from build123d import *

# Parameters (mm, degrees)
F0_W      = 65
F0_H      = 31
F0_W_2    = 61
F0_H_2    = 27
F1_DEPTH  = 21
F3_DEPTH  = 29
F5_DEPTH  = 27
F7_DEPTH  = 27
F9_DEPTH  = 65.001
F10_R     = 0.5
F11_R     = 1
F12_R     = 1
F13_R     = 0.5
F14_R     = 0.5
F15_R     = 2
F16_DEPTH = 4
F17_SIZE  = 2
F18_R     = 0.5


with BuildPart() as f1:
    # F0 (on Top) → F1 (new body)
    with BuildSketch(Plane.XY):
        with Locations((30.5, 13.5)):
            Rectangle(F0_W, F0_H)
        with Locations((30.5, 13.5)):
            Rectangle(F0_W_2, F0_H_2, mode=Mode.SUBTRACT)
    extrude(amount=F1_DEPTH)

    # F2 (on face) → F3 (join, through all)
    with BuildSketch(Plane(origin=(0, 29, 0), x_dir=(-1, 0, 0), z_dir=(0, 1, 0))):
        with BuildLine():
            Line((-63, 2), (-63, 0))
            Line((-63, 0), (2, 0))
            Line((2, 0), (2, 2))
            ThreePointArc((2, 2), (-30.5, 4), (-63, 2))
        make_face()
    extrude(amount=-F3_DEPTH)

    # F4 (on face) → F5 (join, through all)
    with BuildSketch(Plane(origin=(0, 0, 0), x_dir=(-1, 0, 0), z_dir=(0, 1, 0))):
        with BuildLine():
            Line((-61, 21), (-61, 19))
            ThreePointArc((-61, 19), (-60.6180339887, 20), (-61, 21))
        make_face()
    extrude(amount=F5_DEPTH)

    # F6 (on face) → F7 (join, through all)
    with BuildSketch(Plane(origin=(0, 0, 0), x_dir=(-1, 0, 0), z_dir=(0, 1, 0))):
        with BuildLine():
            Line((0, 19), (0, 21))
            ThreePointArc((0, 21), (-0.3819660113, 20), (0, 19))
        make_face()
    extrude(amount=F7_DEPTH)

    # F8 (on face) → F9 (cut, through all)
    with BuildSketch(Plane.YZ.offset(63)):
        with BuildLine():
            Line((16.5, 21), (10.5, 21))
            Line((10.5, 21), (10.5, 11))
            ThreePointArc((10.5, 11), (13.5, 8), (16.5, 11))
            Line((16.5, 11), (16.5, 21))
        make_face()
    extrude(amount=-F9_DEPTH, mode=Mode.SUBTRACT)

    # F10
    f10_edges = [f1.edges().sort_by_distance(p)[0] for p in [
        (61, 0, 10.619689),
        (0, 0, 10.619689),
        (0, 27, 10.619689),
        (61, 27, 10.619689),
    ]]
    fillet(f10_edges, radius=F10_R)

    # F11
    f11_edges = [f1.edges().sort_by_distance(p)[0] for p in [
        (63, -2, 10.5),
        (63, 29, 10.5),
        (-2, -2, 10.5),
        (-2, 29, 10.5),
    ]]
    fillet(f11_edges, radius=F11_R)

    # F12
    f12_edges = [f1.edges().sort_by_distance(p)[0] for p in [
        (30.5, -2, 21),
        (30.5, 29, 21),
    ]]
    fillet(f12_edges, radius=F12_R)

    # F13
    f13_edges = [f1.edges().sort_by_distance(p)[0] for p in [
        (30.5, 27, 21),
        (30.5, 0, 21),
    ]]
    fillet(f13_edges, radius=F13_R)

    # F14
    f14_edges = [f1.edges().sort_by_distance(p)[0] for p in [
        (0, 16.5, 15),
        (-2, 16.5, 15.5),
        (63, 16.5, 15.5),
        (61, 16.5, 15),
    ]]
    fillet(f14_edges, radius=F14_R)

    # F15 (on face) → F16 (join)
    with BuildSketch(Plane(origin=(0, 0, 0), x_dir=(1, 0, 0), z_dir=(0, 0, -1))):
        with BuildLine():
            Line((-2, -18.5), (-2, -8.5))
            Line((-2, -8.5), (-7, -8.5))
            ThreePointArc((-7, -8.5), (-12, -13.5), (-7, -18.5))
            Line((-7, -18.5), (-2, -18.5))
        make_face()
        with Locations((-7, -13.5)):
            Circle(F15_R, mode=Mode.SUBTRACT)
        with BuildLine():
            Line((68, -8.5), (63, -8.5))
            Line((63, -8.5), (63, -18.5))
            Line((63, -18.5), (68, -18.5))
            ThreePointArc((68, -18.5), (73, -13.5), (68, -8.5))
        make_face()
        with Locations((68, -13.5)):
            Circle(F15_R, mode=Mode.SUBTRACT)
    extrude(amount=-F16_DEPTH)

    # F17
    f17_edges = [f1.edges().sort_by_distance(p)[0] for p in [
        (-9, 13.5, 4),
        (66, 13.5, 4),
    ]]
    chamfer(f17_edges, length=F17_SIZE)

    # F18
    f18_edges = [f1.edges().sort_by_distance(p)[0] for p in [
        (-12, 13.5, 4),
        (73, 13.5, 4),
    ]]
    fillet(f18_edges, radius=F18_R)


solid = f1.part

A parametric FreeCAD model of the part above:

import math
import FreeCAD as App
import Part
import Sketcher
from FreeCAD import Vector
Q = App.Units.Quantity


def edges_at(feature, points):
    """Names of the edges that pass closest to the given points."""
    edges = feature.Shape.Edges
    near = lambda p: min(range(len(edges)), key=lambda i: edges[i].distToShape(Part.Vertex(*p))[0])
    return sorted({f"Edge{near(p) + 1}" for p in points})

doc = App.newDocument("Part")
body = doc.addObject("PartDesign::Body", "Body")

# Sketch on XY plane
sketch1 = doc.addObject("Sketcher::SketchObject", "Sketch")
body.addObject(sketch1)
sketch1.AttachmentSupport = (doc.XY_Plane, [""])
sketch1.MapMode = "FlatFace"
sketch1.addGeometry(Part.LineSegment(Vector(-2, 29, 0), Vector(-2, -2, 0)), False)
sketch1.addGeometry(Part.LineSegment(Vector(-2, -2, 0), Vector(63, -2, 0)), False)
sketch1.addGeometry(Part.LineSegment(Vector(63, -2, 0), Vector(63, 29, 0)), False)
sketch1.addGeometry(Part.LineSegment(Vector(63, 29, 0), Vector(-2, 29, 0)), False)
sketch1.addGeometry(Part.LineSegment(Vector(61, 0, 0), Vector(0, 0, 0)), False)
sketch1.addGeometry(Part.LineSegment(Vector(0, 0, 0), Vector(0, 27, 0)), False)
sketch1.addGeometry(Part.LineSegment(Vector(0, 27, 0), Vector(61, 27, 0)), False)
sketch1.addGeometry(Part.LineSegment(Vector(61, 27, 0), Vector(61, 0, 0)), False)
sketch1.addConstraint(Sketcher.Constraint("Coincident", 0, 2, 1, 1))
sketch1.addConstraint(Sketcher.Constraint("Coincident", 1, 2, 2, 1))
sketch1.addConstraint(Sketcher.Constraint("Coincident", 2, 2, 3, 1))
sketch1.addConstraint(Sketcher.Constraint("Coincident", 3, 2, 0, 1))
sketch1.addConstraint(Sketcher.Constraint("Coincident", 4, 2, 5, 1))
sketch1.addConstraint(Sketcher.Constraint("Coincident", 5, 2, 6, 1))
sketch1.addConstraint(Sketcher.Constraint("Coincident", 6, 2, 7, 1))
sketch1.addConstraint(Sketcher.Constraint("Coincident", 7, 2, 4, 1))
sketch1.addConstraint(Sketcher.Constraint("Vertical", 0))
sketch1.addConstraint(Sketcher.Constraint("Horizontal", 1))
sketch1.addConstraint(Sketcher.Constraint("Vertical", 2))
sketch1.addConstraint(Sketcher.Constraint("Horizontal", 3))
sketch1.addConstraint(Sketcher.Constraint("Horizontal", 4))
sketch1.addConstraint(Sketcher.Constraint("Vertical", 5))
sketch1.addConstraint(Sketcher.Constraint("Horizontal", 6))
sketch1.addConstraint(Sketcher.Constraint("Vertical", 7))
sketch1.addConstraint(Sketcher.Constraint("Coincident", 4, 2, -1, 1))
sketch1.addConstraint(Sketcher.Constraint("DistanceX", 1, 1, 1, 2, Q("65 mm")))
sketch1.addConstraint(Sketcher.Constraint("DistanceX", 4, 2, 4, 1, Q("61 mm")))
sketch1.addConstraint(Sketcher.Constraint("DistanceY", 0, 2, 0, 1, Q("31 mm")))
sketch1.addConstraint(Sketcher.Constraint("DistanceY", 5, 1, 5, 2, Q("27 mm")))
sketch1.addConstraint(Sketcher.Constraint("DistanceX", 0, 2, -1, 1, Q("2 mm")))
sketch1.addConstraint(Sketcher.Constraint("DistanceY", 0, 2, -1, 1, Q("2 mm")))
pad1 = doc.addObject("PartDesign::Pad", "Pad")
body.addObject(pad1)
pad1.Profile = sketch1
pad1.Length = 21

# Sketch on XZ plane
sketch2 = doc.addObject("Sketcher::SketchObject", "Sketch001")
body.addObject(sketch2)
sketch2.AttachmentSupport = (doc.XZ_Plane, [""])
sketch2.MapMode = "FlatFace"
sketch2.AttachmentOffset = App.Placement(Vector(0, 0, -29), App.Rotation())
sketch2.addGeometry(Part.LineSegment(Vector(63, 2, 0), Vector(63, 0, 0)), False)
sketch2.addGeometry(Part.LineSegment(Vector(63, 0, 0), Vector(-2, 0, 0)), False)
sketch2.addGeometry(Part.LineSegment(Vector(-2, 0, 0), Vector(-2, 2, 0)), False)
sketch2.addGeometry(Part.ArcOfCircle(Part.Circle(Vector(30.5, -261.0625, 0), Vector(0, 0, 1), 265.0625), math.radians(82.957093), math.radians(97.042907)), False)
sketch2.addConstraint(Sketcher.Constraint("Coincident", 0, 2, 1, 1))
sketch2.addConstraint(Sketcher.Constraint("Coincident", 1, 2, 2, 1))
sketch2.addConstraint(Sketcher.Constraint("Coincident", 2, 2, 3, 2))
sketch2.addConstraint(Sketcher.Constraint("Coincident", 3, 1, 0, 1))
sketch2.addConstraint(Sketcher.Constraint("Vertical", 0))
sketch2.addConstraint(Sketcher.Constraint("Horizontal", 1))
sketch2.addConstraint(Sketcher.Constraint("Vertical", 2))
sketch2.addConstraint(Sketcher.Constraint("PointOnObject", 0, 2, -1))
sketch2.addConstraint(Sketcher.Constraint("Horizontal", 2, 2, 3, 1))
sketch2.addConstraint(Sketcher.Constraint("DistanceX", 1, 2, 1, 1, Q("65 mm")))
sketch2.addConstraint(Sketcher.Constraint("DistanceY", 0, 2, 0, 1, Q("2 mm")))
sketch2.addConstraint(Sketcher.Constraint("DistanceX", -1, 1, 0, 2, Q("63 mm")))
sketch2.addConstraint(Sketcher.Constraint("Radius", 3, Q("265.0625 mm")))
pad2 = doc.addObject("PartDesign::Pad", "Pad001")
body.addObject(pad2)
pad2.Profile = sketch2
pad2.Type = "UpToLast"

# Sketch on XZ plane
sketch3 = doc.addObject("Sketcher::SketchObject", "Sketch002")
body.addObject(sketch3)
sketch3.AttachmentSupport = (doc.XZ_Plane, [""])
sketch3.MapMode = "FlatFace"
sketch3.addGeometry(Part.LineSegment(Vector(61, 21, 0), Vector(61, 19, 0)), False)
sketch3.addGeometry(Part.ArcOfCircle(Part.Circle(Vector(62.118034, 20, 0), Vector(0, 0, 1), 1.5), math.radians(138.189685), math.radians(221.810315)), False)
sketch3.addConstraint(Sketcher.Constraint("Coincident", 0, 1, 1, 1))
sketch3.addConstraint(Sketcher.Constraint("Coincident", 1, 2, 0, 2))
sketch3.addConstraint(Sketcher.Constraint("Vertical", 0))
sketch3.addConstraint(Sketcher.Constraint("Radius", 1, Q("1.5 mm")))
sketch3.addConstraint(Sketcher.Constraint("DistanceY", 0, 2, 0, 1, Q("2 mm")))
sketch3.addConstraint(Sketcher.Constraint("DistanceY", -1, 1, 1, 3, Q("20 mm")))
sketch3.addConstraint(Sketcher.Constraint("DistanceX", -1, 1, 0, 1, Q("61 mm")))
pad3 = doc.addObject("PartDesign::Pad", "Pad002")
body.addObject(pad3)
pad3.Profile = sketch3
pad3.Type = "UpToLast"
pad3.Reversed = True

# Sketch on XZ plane
sketch4 = doc.addObject("Sketcher::SketchObject", "Sketch003")
body.addObject(sketch4)
sketch4.AttachmentSupport = (doc.XZ_Plane, [""])
sketch4.MapMode = "FlatFace"
sketch4.addGeometry(Part.LineSegment(Vector(0, 19, 0), Vector(0, 21, 0)), False)
sketch4.addGeometry(Part.ArcOfCircle(Part.Circle(Vector(-1.118034, 20, 0), Vector(0, 0, 1), 1.5), math.radians(-41.810315), math.radians(41.810315)), False)
sketch4.addConstraint(Sketcher.Constraint("Coincident", 0, 1, 1, 1))
sketch4.addConstraint(Sketcher.Constraint("Coincident", 1, 2, 0, 2))
sketch4.addConstraint(Sketcher.Constraint("Vertical", 0))
sketch4.addConstraint(Sketcher.Constraint("PointOnObject", 0, 1, -2))
sketch4.addConstraint(Sketcher.Constraint("Radius", 1, Q("1.5 mm")))
sketch4.addConstraint(Sketcher.Constraint("DistanceY", 0, 1, 0, 2, Q("2 mm")))
sketch4.addConstraint(Sketcher.Constraint("DistanceY", -1, 1, 1, 3, Q("20 mm")))
pad4 = doc.addObject("PartDesign::Pad", "Pad003")
body.addObject(pad4)
pad4.Profile = sketch4
pad4.Type = "UpToLast"
pad4.Reversed = True

# Sketch on YZ plane
sketch5 = doc.addObject("Sketcher::SketchObject", "Sketch004")
body.addObject(sketch5)
sketch5.AttachmentSupport = (doc.YZ_Plane, [""])
sketch5.MapMode = "FlatFace"
sketch5.AttachmentOffset = App.Placement(Vector(0, 0, 63), App.Rotation())
sketch5.addGeometry(Part.LineSegment(Vector(16.5, 21, 0), Vector(10.5, 21, 0)), False)
sketch5.addGeometry(Part.LineSegment(Vector(10.5, 21, 0), Vector(10.5, 11, 0)), False)
sketch5.addGeometry(Part.ArcOfCircle(Part.Circle(Vector(13.5, 11, 0), Vector(0, 0, 1), 3), math.radians(180), math.radians(360)), False)
sketch5.addGeometry(Part.LineSegment(Vector(16.5, 11, 0), Vector(16.5, 21, 0)), False)
sketch5.addConstraint(Sketcher.Constraint("Coincident", 0, 2, 1, 1))
sketch5.addConstraint(Sketcher.Constraint("Tangent", 1, 2, 2, 1))
sketch5.addConstraint(Sketcher.Constraint("Tangent", 2, 2, 3, 1))
sketch5.addConstraint(Sketcher.Constraint("Coincident", 3, 2, 0, 1))
sketch5.addConstraint(Sketcher.Constraint("Horizontal", 0))
sketch5.addConstraint(Sketcher.Constraint("Vertical", 1))
sketch5.addConstraint(Sketcher.Constraint("Vertical", 3))
sketch5.addConstraint(Sketcher.Constraint("Radius", 2, Q("3 mm")))
sketch5.addConstraint(Sketcher.Constraint("DistanceY", 1, 2, 1, 1, Q("10 mm")))
sketch5.addConstraint(Sketcher.Constraint("DistanceY", -1, 1, 2, 3, Q("11 mm")))
sketch5.addConstraint(Sketcher.Constraint("DistanceX", -1, 1, 2, 3, Q("13.5 mm")))
pocket1 = doc.addObject("PartDesign::Pocket", "Pocket")
body.addObject(pocket1)
pocket1.Profile = sketch5
pocket1.Type = "ThroughAll"
doc.recompute()

fillet = doc.addObject("PartDesign::Fillet", "Fillet")
body.addObject(fillet)
fillet.Base = (pocket1, edges_at(pocket1, [
    (61, 0, 10.62),
    (0, 0, 10.62),
    (0, 27, 10.62),
    (61, 27, 10.62),
]))
fillet.Radius = 0.5
doc.recompute()

fillet2 = doc.addObject("PartDesign::Fillet", "Fillet001")
body.addObject(fillet2)
fillet2.Base = (fillet, edges_at(fillet, [
    (63, -2, 10.5),
    (63, 29, 10.5),
    (-2, -2, 10.5),
    (-2, 29, 10.5),
]))
fillet2.Radius = 1
doc.recompute()

fillet3 = doc.addObject("PartDesign::Fillet", "Fillet002")
body.addObject(fillet3)
fillet3.Base = (fillet2, edges_at(fillet2, [(30.5, -2, 21), (30.5, 29, 21)]))
fillet3.Radius = 1
doc.recompute()

fillet4 = doc.addObject("PartDesign::Fillet", "Fillet003")
body.addObject(fillet4)
fillet4.Base = (fillet3, edges_at(fillet3, [(30.5, 27, 21), (30.5, 0, 21)]))
fillet4.Radius = 0.5
doc.recompute()

fillet5 = doc.addObject("PartDesign::Fillet", "Fillet004")
body.addObject(fillet5)
fillet5.Base = (fillet4, edges_at(fillet4, [
    (0, 16.5, 15),
    (-2, 16.5, 15.5),
    (63, 16.5, 15.5),
    (61, 16.5, 15),
]))
fillet5.Radius = 0.5

# Sketch on XY plane
sketch6 = doc.addObject("Sketcher::SketchObject", "Sketch005")
body.addObject(sketch6)
sketch6.AttachmentSupport = (doc.XY_Plane, [""])
sketch6.MapMode = "FlatFace"
sketch6.addGeometry(Part.LineSegment(Vector(-2, 18.5, 0), Vector(-2, 8.5, 0)), False)
sketch6.addGeometry(Part.LineSegment(Vector(-2, 8.5, 0), Vector(-7, 8.5, 0)), False)
sketch6.addGeometry(Part.ArcOfCircle(Part.Circle(Vector(-7, 13.5, 0), Vector(0, 0, 1), 5), math.radians(90), math.radians(270)), False)
sketch6.addGeometry(Part.LineSegment(Vector(-7, 18.5, 0), Vector(-2, 18.5, 0)), False)
sketch6.addGeometry(Part.Circle(Vector(-7, 13.5, 0), Vector(0, 0, 1), 2), False)
sketch6.addGeometry(Part.LineSegment(Vector(68, 8.5, 0), Vector(63, 8.5, 0)), False)
sketch6.addGeometry(Part.LineSegment(Vector(63, 8.5, 0), Vector(63, 18.5, 0)), False)
sketch6.addGeometry(Part.LineSegment(Vector(63, 18.5, 0), Vector(68, 18.5, 0)), False)
sketch6.addGeometry(Part.ArcOfCircle(Part.Circle(Vector(68, 13.5, 0), Vector(0, 0, 1), 5), math.radians(-90), math.radians(90)), False)
sketch6.addGeometry(Part.Circle(Vector(68, 13.5, 0), Vector(0, 0, 1), 2), False)
sketch6.addConstraint(Sketcher.Constraint("Coincident", 0, 2, 1, 1))
sketch6.addConstraint(Sketcher.Constraint("Tangent", 1, 2, 2, 2))
sketch6.addConstraint(Sketcher.Constraint("Tangent", 2, 1, 3, 1))
sketch6.addConstraint(Sketcher.Constraint("Coincident", 3, 2, 0, 1))
sketch6.addConstraint(Sketcher.Constraint("Coincident", 5, 2, 6, 1))
sketch6.addConstraint(Sketcher.Constraint("Coincident", 6, 2, 7, 1))
sketch6.addConstraint(Sketcher.Constraint("Tangent", 7, 2, 8, 2))
sketch6.addConstraint(Sketcher.Constraint("Tangent", 8, 1, 5, 1))
sketch6.addConstraint(Sketcher.Constraint("Vertical", 0))
sketch6.addConstraint(Sketcher.Constraint("Horizontal", 1))
sketch6.addConstraint(Sketcher.Constraint("Horizontal", 3))
sketch6.addConstraint(Sketcher.Constraint("Horizontal", 5))
sketch6.addConstraint(Sketcher.Constraint("Vertical", 6))
sketch6.addConstraint(Sketcher.Constraint("Horizontal", 7))
sketch6.addConstraint(Sketcher.Constraint("Coincident", 4, 3, 2, 3))
sketch6.addConstraint(Sketcher.Constraint("Coincident", 9, 3, 8, 3))
sketch6.addConstraint(Sketcher.Constraint("Equal", 2, 8))
sketch6.addConstraint(Sketcher.Constraint("Equal", 4, 9))
sketch6.addConstraint(Sketcher.Constraint("Horizontal", 4, 3, 8, 3))
sketch6.addConstraint(Sketcher.Constraint("Equal", 3, 5))
sketch6.addConstraint(Sketcher.Constraint("Diameter", 4, Q("4 mm")))
sketch6.addConstraint(Sketcher.Constraint("Radius", 2, Q("5 mm")))
sketch6.addConstraint(Sketcher.Constraint("DistanceX", 1, 2, 1, 1, Q("5 mm")))
sketch6.addConstraint(Sketcher.Constraint("DistanceX", 2, 3, -1, 1, Q("7 mm")))
sketch6.addConstraint(Sketcher.Constraint("DistanceX", -1, 1, 8, 3, Q("68 mm")))
sketch6.addConstraint(Sketcher.Constraint("DistanceY", -1, 1, 2, 3, Q("13.5 mm")))
pad5 = doc.addObject("PartDesign::Pad", "Pad004")
body.addObject(pad5)
pad5.Profile = sketch6
pad5.Length = 4
doc.recompute()

chamfer = doc.addObject("PartDesign::Chamfer", "Chamfer")
body.addObject(chamfer)
chamfer.Base = (pad5, edges_at(pad5, [(-9, 13.5, 4), (66, 13.5, 4)]))
chamfer.Size = 2
doc.recompute()

fillet6 = doc.addObject("PartDesign::Fillet", "Fillet005")
body.addObject(fillet6)
fillet6.Base = (chamfer, edges_at(chamfer, [(-12, 13.5, 4), (73, 13.5, 4)]))
fillet6.Radius = 0.5

doc.recompute()
